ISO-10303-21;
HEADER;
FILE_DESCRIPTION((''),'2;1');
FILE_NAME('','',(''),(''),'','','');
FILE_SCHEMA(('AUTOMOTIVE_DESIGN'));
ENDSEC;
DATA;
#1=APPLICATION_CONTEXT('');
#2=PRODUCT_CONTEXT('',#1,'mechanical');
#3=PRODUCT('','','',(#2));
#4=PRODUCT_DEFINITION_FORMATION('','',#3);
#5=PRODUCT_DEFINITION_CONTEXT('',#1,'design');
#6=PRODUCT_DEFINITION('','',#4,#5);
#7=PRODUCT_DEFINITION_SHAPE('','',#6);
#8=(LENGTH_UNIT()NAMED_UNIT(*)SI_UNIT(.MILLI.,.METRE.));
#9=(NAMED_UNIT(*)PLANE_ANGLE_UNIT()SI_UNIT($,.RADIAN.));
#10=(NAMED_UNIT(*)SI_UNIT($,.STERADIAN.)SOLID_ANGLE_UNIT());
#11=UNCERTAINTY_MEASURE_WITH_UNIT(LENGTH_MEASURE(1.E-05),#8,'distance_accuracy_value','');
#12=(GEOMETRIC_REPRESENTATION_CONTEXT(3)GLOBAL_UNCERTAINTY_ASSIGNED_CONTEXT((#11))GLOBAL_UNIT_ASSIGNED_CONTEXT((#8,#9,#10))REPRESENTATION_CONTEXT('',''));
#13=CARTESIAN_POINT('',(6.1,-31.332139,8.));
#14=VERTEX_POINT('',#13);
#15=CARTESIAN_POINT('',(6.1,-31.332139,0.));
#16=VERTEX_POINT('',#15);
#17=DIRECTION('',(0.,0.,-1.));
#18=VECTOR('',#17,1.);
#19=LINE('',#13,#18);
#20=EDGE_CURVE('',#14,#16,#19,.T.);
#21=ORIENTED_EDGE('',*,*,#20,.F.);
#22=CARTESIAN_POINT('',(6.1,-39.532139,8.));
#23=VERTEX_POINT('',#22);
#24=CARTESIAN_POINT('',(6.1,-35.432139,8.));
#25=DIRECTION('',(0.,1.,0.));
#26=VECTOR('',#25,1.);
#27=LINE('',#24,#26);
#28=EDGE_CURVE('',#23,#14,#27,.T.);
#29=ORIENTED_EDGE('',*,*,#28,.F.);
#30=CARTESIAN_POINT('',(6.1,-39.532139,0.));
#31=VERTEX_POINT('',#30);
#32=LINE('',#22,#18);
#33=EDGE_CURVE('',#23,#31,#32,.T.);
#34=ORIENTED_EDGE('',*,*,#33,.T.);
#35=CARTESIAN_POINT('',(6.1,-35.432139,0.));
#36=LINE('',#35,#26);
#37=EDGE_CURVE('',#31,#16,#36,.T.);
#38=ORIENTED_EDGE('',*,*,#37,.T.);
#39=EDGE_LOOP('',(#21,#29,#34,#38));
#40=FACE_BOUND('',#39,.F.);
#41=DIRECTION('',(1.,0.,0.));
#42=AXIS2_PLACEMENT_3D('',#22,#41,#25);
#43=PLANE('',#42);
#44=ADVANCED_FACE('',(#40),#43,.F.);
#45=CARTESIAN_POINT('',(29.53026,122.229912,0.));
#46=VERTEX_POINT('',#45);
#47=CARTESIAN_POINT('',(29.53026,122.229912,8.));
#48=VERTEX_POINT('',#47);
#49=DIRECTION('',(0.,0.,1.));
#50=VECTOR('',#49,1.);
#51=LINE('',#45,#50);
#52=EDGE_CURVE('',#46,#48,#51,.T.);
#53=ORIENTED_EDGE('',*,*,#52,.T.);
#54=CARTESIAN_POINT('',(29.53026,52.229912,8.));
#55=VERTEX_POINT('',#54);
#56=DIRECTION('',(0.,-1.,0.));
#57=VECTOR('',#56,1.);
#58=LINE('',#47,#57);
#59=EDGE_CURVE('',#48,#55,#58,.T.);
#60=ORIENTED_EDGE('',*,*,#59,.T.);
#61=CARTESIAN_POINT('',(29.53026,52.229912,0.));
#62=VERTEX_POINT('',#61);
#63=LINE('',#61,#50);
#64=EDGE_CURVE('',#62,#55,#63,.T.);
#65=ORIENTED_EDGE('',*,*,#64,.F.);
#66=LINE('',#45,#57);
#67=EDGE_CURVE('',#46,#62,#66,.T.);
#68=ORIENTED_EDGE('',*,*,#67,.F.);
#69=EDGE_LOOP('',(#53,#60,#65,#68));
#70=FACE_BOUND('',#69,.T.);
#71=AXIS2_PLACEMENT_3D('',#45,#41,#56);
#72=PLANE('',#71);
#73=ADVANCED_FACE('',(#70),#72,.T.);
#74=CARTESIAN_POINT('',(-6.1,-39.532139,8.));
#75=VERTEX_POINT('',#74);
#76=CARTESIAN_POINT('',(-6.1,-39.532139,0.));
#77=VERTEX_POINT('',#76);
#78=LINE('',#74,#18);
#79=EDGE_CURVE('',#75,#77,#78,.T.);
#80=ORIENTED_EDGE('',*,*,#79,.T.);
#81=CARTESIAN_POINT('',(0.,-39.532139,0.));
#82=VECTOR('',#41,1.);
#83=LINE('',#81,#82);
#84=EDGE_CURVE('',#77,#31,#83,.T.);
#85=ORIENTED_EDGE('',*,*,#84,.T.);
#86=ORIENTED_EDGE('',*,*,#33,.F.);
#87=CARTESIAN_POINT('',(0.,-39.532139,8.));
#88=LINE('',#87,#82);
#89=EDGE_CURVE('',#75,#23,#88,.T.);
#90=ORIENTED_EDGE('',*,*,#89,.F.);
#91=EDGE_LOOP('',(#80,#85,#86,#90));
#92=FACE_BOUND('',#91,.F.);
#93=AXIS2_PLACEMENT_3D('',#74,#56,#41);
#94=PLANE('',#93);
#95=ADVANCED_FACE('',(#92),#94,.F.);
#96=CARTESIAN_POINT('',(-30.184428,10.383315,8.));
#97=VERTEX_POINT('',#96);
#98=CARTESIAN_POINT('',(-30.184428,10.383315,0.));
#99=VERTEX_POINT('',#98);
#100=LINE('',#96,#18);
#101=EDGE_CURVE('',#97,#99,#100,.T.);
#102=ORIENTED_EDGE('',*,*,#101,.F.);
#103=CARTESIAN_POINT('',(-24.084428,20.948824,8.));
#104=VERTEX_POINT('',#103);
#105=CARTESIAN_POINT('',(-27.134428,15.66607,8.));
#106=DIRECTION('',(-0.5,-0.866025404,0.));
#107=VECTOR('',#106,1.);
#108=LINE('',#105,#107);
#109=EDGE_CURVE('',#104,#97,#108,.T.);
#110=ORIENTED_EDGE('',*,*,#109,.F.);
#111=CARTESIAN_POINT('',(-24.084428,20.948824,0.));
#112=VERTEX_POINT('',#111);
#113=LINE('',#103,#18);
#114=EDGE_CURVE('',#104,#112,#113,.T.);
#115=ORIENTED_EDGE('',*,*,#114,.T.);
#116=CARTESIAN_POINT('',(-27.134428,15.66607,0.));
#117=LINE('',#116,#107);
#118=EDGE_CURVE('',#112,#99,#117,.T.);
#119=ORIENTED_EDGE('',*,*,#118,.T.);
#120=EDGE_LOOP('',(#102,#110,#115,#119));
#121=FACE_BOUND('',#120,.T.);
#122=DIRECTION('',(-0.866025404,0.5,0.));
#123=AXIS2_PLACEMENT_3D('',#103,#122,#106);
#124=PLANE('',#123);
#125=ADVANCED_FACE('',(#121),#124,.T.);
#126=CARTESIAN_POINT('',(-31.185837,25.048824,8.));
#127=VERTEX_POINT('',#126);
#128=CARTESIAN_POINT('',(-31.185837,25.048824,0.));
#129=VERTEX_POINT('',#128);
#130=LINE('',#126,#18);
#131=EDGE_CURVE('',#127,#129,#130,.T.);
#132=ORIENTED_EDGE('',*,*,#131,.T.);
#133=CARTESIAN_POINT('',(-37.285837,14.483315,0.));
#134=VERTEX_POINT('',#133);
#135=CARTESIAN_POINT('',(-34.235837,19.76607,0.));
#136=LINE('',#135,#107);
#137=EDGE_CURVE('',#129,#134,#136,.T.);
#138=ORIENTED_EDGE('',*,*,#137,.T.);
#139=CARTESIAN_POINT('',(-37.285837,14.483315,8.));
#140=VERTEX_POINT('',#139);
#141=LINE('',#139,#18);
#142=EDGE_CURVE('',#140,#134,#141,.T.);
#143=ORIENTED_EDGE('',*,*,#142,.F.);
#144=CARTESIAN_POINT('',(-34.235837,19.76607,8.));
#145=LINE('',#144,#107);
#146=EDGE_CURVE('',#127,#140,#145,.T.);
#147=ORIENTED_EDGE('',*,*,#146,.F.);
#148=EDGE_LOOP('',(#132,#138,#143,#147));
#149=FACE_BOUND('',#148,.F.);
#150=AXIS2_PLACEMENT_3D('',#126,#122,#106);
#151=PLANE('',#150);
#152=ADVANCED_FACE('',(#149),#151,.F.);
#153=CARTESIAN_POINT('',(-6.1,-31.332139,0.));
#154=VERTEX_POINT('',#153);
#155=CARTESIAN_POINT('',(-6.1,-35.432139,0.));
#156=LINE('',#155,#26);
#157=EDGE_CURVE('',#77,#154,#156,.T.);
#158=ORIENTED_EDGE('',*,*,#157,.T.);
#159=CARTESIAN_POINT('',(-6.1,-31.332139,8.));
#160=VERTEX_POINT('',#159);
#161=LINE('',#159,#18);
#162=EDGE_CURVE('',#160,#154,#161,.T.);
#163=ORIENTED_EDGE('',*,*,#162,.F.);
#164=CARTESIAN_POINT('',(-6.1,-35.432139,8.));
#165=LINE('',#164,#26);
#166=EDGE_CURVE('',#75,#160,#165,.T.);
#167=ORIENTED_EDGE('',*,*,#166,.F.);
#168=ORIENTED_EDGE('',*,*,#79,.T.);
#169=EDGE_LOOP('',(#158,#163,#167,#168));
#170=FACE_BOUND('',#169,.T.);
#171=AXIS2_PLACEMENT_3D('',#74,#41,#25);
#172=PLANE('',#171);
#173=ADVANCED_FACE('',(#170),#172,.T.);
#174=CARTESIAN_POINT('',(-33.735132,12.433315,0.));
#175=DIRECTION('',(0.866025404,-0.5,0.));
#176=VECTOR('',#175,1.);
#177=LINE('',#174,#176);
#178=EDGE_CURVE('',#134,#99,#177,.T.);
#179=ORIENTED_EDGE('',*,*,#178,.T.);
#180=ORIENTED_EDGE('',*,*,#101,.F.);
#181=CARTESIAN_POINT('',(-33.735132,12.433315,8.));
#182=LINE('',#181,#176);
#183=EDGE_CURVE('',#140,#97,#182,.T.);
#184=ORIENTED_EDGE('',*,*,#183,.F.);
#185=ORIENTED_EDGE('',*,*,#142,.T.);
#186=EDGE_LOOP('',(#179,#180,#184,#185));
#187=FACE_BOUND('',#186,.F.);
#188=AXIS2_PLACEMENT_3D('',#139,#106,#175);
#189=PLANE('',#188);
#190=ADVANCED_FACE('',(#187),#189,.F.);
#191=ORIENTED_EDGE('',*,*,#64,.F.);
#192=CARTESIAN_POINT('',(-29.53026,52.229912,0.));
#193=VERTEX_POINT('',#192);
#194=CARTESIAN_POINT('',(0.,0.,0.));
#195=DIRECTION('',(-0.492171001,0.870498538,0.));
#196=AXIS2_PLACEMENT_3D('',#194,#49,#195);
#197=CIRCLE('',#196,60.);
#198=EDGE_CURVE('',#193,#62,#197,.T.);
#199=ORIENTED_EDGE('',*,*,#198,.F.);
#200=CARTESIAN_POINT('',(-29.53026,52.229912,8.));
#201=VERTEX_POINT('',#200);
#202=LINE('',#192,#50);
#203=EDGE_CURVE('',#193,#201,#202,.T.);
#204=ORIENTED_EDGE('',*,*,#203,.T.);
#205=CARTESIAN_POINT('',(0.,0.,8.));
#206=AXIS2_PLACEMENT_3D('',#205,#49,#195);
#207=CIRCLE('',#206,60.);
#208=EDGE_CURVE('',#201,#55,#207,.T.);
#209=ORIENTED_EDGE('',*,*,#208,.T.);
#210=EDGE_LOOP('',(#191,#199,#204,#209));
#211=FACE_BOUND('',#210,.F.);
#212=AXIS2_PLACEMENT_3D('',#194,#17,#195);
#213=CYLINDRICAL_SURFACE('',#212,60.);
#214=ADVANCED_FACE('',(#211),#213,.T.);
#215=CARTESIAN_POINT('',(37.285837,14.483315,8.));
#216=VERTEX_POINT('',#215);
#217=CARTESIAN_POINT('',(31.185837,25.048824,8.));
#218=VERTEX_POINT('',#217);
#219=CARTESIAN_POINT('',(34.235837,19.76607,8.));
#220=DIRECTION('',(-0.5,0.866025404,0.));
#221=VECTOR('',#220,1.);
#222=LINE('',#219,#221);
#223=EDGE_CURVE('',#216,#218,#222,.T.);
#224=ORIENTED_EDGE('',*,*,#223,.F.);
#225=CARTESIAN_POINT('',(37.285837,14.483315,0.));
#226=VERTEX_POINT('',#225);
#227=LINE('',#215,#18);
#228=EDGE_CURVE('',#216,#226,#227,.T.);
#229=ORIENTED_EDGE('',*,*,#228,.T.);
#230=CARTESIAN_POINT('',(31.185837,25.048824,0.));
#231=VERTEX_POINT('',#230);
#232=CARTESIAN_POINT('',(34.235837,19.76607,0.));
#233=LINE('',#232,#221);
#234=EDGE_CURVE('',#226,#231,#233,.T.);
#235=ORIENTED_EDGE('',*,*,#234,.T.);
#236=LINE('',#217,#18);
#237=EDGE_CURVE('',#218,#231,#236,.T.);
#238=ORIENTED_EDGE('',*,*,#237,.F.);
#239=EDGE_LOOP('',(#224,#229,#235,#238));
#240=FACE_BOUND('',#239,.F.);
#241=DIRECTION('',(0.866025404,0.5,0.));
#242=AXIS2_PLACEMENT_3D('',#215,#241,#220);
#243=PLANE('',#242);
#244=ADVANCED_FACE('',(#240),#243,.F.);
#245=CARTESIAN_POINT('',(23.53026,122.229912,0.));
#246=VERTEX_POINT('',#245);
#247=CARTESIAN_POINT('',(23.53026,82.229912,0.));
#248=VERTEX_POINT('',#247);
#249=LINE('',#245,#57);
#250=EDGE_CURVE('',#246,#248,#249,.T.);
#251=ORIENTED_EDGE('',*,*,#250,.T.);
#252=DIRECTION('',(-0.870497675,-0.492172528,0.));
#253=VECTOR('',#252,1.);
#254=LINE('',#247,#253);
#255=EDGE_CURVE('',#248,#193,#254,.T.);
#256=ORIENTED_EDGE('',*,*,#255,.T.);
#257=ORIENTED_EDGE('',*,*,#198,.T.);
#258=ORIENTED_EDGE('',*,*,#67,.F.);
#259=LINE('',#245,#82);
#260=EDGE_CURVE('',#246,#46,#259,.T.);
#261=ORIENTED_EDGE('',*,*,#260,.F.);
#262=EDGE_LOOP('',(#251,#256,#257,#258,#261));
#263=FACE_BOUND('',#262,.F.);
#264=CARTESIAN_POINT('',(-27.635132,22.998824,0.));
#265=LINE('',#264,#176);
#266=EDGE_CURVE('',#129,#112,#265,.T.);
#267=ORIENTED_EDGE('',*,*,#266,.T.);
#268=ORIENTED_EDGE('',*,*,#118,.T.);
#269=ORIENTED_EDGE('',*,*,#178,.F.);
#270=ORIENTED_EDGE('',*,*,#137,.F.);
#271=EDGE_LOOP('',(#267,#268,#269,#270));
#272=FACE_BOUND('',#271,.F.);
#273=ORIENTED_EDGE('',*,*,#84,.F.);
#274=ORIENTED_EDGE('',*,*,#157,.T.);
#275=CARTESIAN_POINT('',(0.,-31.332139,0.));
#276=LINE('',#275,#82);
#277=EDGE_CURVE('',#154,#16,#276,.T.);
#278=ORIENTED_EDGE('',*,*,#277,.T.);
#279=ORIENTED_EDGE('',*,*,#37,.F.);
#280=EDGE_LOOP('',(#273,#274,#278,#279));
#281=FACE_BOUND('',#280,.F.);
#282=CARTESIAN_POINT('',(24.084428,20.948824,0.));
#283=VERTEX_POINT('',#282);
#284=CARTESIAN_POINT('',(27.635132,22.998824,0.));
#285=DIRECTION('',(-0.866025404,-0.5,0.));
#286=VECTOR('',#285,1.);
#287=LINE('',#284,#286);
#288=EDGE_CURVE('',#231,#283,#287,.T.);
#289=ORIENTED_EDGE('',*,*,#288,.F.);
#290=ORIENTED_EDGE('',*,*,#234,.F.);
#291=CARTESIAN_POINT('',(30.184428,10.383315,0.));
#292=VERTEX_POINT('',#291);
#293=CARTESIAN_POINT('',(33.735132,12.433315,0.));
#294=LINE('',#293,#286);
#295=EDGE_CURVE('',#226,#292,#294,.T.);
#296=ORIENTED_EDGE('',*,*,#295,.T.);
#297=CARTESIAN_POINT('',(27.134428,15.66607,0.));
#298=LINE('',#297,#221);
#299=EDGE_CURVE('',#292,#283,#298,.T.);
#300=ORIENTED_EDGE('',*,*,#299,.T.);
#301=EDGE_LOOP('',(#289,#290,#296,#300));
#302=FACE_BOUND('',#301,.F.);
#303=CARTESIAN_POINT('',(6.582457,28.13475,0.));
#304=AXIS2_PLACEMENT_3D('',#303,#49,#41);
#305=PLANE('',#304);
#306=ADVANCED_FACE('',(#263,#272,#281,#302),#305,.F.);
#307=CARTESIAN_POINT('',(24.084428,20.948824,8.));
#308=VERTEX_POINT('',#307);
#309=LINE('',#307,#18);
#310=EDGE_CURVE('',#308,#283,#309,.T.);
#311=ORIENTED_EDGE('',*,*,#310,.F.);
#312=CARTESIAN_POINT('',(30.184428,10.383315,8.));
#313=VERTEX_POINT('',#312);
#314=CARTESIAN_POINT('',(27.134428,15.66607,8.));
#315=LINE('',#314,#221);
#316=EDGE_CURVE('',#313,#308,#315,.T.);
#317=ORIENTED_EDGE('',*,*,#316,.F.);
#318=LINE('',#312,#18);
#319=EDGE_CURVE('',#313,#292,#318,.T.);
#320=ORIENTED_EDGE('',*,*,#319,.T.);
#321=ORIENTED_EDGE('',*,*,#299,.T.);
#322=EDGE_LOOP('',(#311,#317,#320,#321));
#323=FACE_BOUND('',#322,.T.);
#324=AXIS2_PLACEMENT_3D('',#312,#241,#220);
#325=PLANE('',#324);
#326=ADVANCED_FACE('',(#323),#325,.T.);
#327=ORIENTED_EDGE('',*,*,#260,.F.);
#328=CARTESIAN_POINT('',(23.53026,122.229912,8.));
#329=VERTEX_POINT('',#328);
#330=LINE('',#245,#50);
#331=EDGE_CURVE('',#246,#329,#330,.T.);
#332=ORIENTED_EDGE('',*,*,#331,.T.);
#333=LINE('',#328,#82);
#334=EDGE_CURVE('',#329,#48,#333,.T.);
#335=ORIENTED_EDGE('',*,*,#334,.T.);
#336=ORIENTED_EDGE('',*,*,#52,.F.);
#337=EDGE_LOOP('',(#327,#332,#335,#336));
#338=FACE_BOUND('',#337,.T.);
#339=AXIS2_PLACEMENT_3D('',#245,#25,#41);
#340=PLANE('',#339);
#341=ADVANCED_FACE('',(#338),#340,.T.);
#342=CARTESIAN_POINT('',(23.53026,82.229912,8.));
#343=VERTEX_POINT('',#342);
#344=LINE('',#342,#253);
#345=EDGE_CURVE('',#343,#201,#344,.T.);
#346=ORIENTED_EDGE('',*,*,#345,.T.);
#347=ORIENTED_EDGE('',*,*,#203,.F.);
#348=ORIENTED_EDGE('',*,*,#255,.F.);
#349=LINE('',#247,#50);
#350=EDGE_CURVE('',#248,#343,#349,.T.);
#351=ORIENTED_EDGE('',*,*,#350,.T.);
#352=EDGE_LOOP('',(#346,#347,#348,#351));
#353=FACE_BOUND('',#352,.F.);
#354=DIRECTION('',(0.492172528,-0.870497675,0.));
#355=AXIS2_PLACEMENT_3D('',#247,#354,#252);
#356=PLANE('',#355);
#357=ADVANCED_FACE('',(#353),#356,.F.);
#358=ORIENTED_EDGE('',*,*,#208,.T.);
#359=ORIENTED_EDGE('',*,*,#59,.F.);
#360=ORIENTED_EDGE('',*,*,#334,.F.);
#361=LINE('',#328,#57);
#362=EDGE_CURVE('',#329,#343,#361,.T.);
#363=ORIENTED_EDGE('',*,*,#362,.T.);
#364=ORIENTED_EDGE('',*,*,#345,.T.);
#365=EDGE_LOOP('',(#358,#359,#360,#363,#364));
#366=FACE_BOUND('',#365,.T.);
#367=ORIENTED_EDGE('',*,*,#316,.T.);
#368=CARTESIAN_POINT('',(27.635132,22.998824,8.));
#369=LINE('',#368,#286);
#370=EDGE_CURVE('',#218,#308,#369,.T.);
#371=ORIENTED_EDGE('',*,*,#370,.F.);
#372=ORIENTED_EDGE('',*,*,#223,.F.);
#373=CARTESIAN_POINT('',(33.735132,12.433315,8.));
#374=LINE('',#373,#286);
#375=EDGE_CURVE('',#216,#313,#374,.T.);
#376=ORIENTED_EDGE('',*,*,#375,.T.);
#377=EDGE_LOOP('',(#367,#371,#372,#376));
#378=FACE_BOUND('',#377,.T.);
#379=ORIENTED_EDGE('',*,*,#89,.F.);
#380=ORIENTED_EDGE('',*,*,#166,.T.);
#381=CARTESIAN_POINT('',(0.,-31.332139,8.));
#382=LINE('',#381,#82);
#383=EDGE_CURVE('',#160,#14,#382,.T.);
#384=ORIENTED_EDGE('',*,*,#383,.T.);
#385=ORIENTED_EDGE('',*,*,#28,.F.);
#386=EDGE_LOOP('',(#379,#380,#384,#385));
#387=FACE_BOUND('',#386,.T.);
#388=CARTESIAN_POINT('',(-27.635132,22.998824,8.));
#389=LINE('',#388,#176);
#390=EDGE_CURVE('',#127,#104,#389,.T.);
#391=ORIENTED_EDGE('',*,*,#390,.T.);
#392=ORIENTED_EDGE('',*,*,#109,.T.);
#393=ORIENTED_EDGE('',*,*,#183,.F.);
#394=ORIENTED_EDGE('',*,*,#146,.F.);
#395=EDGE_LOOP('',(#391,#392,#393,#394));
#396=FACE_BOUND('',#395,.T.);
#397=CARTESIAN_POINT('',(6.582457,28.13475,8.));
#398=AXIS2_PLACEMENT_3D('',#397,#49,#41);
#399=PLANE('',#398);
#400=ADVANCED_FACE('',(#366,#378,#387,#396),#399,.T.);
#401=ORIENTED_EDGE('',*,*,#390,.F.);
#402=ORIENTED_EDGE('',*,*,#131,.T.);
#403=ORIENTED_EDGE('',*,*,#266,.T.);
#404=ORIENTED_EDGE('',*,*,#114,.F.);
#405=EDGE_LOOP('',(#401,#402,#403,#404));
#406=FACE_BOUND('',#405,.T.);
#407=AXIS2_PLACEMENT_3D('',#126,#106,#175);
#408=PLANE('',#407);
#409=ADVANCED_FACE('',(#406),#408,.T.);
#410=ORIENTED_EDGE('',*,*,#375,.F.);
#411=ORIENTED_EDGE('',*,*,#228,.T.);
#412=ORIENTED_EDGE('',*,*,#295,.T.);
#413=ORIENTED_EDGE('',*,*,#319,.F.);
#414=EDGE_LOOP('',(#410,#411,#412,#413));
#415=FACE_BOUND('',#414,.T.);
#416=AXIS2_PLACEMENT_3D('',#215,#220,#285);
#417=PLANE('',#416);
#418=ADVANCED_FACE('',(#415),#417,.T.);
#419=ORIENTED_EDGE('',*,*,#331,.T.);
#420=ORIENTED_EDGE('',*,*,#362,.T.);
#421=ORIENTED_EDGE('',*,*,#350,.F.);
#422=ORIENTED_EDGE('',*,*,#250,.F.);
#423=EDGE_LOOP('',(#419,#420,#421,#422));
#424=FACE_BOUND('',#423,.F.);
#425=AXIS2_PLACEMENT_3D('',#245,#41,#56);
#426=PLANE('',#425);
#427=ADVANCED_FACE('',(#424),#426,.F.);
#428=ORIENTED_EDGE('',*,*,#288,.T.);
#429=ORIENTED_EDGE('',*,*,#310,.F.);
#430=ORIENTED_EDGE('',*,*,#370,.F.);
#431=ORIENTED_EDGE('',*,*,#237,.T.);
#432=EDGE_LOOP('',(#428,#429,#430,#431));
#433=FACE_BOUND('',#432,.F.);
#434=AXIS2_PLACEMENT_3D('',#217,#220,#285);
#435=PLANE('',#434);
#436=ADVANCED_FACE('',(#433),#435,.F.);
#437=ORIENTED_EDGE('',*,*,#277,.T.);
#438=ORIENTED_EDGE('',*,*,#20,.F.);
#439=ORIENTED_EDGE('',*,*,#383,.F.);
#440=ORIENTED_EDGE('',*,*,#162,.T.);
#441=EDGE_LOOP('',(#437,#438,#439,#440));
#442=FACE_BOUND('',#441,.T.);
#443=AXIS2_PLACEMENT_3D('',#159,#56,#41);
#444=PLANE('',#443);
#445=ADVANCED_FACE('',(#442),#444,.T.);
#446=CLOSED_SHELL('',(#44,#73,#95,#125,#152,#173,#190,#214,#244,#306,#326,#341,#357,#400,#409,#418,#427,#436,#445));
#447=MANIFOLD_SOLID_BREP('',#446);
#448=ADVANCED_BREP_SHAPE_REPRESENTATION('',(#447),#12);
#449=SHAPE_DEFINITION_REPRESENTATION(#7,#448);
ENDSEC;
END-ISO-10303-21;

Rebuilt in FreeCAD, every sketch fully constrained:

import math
import FreeCAD as App
import Part
import Sketcher

V = App.Vector
Q = App.Units.Quantity

doc = App.newDocument("Part")
body = doc.addObject("PartDesign::Body", "Body")

# Sketch on XY plane
sketch1 = body.newObject("Sketcher::SketchObject", "Sketch")
sketch1.AttachmentSupport = (doc.getObject("XY_Plane"), [""])
sketch1.MapMode = "FlatFace"
sketch1.addGeometry([
    Part.ArcOfCircle(Part.Circle(V(0, 0, 0), V(0, 0, 1), 60), math.radians(119.483375), math.radians(420.516625)),  # 0
    Part.LineSegment(V(29.53026, 52.229912, 0), V(29.53026, 122.229912, 0)),  # 1
    Part.LineSegment(V(29.53026, 122.229912, 0), V(23.53026, 122.229912, 0)),  # 2
    Part.LineSegment(V(23.53026, 122.229912, 0), V(23.53026, 82.229912, 0)),  # 3
    Part.LineSegment(V(23.53026, 82.229912, 0), V(-29.53026, 52.229912, 0)),  # 4
], False)
sketch1.addConstraint([
    Sketcher.Constraint("Coincident", 0, 2, 1, 1),
    Sketcher.Constraint("Coincident", 1, 2, 2, 1),
    Sketcher.Constraint("Coincident", 2, 2, 3, 1),
    Sketcher.Constraint("Coincident", 3, 2, 4, 1),
    Sketcher.Constraint("Coincident", 4, 2, 0, 1),
    Sketcher.Constraint("Vertical", 1),
    Sketcher.Constraint("Horizontal", 2),
    Sketcher.Constraint("Vertical", 3),
    Sketcher.Constraint("Coincident", 0, 3, -1, 1),
    Sketcher.Constraint("Radius", 0, Q("60 mm")),
    Sketcher.Constraint("DistanceX", 2, 2, 2, 1, Q("6 mm")),
    Sketcher.Constraint("DistanceY", 1, 1, 1, 2, Q("70 mm")),
    Sketcher.Constraint("DistanceY", 3, 2, 3, 1, Q("40 mm")),
    Sketcher.Constraint("DistanceY", 4, 2, 3, 2, Q("30 mm")),
    Sketcher.Constraint("DistanceX", -1, 1, 0, 2, Q("29.53026 mm")),
])
pad1 = body.newObject("PartDesign::Pad", "Pad")
pad1.Profile = sketch1
pad1.Length = 8

# Sketch on XY plane
sketch2 = body.newObject("Sketcher::SketchObject", "Sketch001")
sketch2.AttachmentSupport = (doc.getObject("XY_Plane"), [""])
sketch2.MapMode = "FlatFace"
sketch2.AttachmentOffset = App.Placement(V(0, 0, 8), App.Rotation())
sketch2.addGeometry([
    Part.LineSegment(V(-6, -31, 0), V(-6, -40, 0)),
    Part.LineSegment(V(-6, -40, 0), V(6, -40, 0)),
    Part.LineSegment(V(6, -40, 0), V(6, -31, 0)),
    Part.LineSegment(V(6, -31, 0), V(-6, -31, 0)),
], False)
sketch2.addConstraint([
    Sketcher.Constraint("Coincident", 0, 2, 1, 1),
    Sketcher.Constraint("Coincident", 1, 2, 2, 1),
    Sketcher.Constraint("Coincident", 2, 2, 3, 1),
    Sketcher.Constraint("Coincident", 3, 2, 0, 1),
    Sketcher.Constraint("Vertical", 0),
    Sketcher.Constraint("Horizontal", 1),
    Sketcher.Constraint("Vertical", 2),
    Sketcher.Constraint("Horizontal", 3),
    Sketcher.Constraint("DistanceX", 1, 1, 1, 2, Q("12.2 mm")),
    Sketcher.Constraint("DistanceY", 0, 2, 0, 1, Q("8.2 mm")),
    Sketcher.Constraint("DistanceX", 0, 2, -1, 1, Q("6.1 mm")),
    Sketcher.Constraint("DistanceY", 0, 2, -1, 1, Q("39.532139 mm")),
])
pocket1 = body.newObject("PartDesign::Pocket", "Pocket")
pocket1.Profile = sketch2
pocket1.Length = 8
doc.recompute()

polarpattern = body.newObject("PartDesign::PolarPattern", "PolarPattern")
polarpattern.Originals = [pocket1]
polarpattern.Axis = (doc.getObject("Z_Axis"), [""])
polarpattern.Angle = 360
polarpattern.Occurrences = 3
body.Tip = polarpattern

doc.recompute()
